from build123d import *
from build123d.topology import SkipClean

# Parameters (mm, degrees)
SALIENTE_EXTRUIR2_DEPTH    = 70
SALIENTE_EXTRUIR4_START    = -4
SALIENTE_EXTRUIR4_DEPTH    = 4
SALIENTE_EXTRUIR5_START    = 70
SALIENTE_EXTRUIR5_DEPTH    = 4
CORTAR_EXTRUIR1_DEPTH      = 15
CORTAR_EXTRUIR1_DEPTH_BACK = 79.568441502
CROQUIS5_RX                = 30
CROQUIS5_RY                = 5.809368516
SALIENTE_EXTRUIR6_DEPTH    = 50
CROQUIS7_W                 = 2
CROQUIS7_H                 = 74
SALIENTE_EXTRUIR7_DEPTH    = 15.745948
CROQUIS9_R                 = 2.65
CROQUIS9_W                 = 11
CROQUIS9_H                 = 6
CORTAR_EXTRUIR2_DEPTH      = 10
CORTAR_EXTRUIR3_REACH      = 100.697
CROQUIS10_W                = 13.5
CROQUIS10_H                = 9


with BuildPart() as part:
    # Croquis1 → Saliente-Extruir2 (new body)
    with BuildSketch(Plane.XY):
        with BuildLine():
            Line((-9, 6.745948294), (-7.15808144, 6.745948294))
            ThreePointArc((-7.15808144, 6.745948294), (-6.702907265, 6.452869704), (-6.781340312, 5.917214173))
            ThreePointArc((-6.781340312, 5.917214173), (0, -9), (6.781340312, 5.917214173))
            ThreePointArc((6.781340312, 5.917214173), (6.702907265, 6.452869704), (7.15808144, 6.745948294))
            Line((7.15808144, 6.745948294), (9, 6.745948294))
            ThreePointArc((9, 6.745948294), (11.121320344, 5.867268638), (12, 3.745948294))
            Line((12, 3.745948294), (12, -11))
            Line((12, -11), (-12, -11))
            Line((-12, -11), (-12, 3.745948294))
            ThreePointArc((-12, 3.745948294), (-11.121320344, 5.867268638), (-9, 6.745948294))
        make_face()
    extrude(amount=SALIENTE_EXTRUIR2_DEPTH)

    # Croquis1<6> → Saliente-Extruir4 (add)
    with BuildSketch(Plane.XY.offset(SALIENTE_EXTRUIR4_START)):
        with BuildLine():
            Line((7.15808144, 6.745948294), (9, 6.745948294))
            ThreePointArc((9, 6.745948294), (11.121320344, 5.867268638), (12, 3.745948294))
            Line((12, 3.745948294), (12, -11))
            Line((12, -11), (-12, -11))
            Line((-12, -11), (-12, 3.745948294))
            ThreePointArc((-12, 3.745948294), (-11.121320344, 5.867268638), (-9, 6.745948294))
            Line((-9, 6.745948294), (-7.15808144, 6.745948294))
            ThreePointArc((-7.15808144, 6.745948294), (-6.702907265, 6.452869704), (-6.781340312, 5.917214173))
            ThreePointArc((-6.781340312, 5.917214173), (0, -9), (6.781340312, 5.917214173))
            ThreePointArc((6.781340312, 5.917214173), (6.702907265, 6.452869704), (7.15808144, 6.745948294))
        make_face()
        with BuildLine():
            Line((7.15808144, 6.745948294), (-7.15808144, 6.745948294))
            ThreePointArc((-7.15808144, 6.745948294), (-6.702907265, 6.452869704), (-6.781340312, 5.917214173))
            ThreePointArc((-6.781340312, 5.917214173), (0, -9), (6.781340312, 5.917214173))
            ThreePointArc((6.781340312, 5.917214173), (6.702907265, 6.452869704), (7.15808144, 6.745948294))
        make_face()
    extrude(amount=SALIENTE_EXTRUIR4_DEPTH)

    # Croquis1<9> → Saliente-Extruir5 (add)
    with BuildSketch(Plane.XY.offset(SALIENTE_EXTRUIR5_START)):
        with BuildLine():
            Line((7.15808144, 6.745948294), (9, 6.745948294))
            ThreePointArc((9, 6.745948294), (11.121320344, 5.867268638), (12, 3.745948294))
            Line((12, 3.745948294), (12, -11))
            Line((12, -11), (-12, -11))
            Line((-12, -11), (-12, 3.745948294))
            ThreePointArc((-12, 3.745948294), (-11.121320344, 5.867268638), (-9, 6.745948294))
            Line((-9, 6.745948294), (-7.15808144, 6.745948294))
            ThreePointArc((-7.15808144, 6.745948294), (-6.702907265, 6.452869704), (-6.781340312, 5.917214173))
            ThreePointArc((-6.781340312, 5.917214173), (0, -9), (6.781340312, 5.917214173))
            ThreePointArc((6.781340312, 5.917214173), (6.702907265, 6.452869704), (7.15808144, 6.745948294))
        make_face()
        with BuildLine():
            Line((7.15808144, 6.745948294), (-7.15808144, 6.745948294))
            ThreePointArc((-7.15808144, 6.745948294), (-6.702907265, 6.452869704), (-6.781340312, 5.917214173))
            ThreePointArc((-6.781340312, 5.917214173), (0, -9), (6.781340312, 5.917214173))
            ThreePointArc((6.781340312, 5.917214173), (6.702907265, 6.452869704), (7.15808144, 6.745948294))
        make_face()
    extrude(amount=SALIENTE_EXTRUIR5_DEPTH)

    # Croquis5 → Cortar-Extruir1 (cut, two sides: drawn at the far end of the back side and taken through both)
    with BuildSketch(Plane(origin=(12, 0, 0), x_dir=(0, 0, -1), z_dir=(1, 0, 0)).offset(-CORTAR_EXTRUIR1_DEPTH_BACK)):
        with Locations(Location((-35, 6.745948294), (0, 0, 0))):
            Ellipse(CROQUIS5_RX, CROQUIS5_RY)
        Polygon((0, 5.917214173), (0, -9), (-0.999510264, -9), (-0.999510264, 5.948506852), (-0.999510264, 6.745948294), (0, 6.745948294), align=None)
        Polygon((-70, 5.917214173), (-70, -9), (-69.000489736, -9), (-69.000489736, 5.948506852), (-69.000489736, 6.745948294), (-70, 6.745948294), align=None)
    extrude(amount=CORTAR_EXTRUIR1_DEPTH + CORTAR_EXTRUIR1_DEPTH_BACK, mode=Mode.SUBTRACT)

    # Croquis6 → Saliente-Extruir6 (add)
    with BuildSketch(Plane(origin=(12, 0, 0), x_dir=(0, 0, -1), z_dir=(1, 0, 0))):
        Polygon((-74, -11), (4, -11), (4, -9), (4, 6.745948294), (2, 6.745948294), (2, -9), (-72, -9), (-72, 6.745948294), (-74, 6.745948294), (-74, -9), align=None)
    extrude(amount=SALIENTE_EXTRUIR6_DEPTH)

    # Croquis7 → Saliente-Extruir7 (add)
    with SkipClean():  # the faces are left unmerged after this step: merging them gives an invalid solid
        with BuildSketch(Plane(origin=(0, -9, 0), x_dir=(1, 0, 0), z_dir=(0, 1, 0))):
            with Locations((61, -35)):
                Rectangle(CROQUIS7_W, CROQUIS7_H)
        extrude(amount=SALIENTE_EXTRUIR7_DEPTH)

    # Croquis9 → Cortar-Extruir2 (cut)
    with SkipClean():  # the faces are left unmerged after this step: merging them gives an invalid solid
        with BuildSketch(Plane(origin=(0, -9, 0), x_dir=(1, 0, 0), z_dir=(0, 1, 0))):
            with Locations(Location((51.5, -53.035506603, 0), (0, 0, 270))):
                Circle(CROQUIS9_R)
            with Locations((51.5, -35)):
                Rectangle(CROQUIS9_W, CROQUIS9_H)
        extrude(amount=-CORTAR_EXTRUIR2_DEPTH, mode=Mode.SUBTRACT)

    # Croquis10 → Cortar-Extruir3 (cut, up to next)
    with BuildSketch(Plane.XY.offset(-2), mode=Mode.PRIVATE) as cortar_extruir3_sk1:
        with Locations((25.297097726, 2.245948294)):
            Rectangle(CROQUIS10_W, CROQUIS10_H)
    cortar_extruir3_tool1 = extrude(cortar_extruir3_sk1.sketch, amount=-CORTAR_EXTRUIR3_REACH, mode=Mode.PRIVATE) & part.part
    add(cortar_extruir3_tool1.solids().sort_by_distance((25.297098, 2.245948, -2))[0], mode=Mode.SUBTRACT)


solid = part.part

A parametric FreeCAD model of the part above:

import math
import FreeCAD as App
import Part
import Sketcher
Q = App.Units.Quantity


def add_polygon(sketch, points):
    """Adds a closed chain of lines whose ends are joined by coincident constraints."""
    first, n = sketch.GeometryCount, len(points)
    for a, b in zip(points, points[1:] + points[:1]):
        sketch.addGeometry(Part.LineSegment(App.Vector(*a, 0), App.Vector(*b, 0)), False)
    for i in range(n):
        sketch.addConstraint(Sketcher.Constraint("Coincident", first + i, 2, first + (i + 1) % n, 1))

doc = App.newDocument("Part")
body = doc.addObject("PartDesign::Body", "Body")

# Sketch on XY plane
sketch1 = body.newObject("Sketcher::SketchObject", "Sketch")
sketch1.AttachmentSupport = (doc.getObject("XY_Plane"), [""])
sketch1.MapMode = "FlatFace"
sketch1.addGeometry([
    Part.LineSegment(App.Vector(-7.2, 6.7, 0), App.Vector(-9, 6.7, 0)),  # 0
    Part.ArcOfCircle(Part.Circle(App.Vector(-9, 3.7, 0), App.Vector(0, 0, 1), 3), math.radians(90), math.radians(180)),  # 1
    Part.LineSegment(App.Vector(-12, 3.7, 0), App.Vector(-12, -11, 0)),  # 2
    Part.LineSegment(App.Vector(-12, -11, 0), App.Vector(12, -11, 0)),  # 3
    Part.LineSegment(App.Vector(12, -11, 0), App.Vector(12, 3.7, 0)),  # 4
    Part.ArcOfCircle(Part.Circle(App.Vector(9, 3.7, 0), App.Vector(0, 0, 1), 3), math.radians(0), math.radians(90)),  # 5
    Part.LineSegment(App.Vector(9, 6.7, 0), App.Vector(7.2, 6.7, 0)),  # 6
    Part.ArcOfCircle(Part.Circle(App.Vector(7.2, 6.2, 0), App.Vector(0, 0, 1), 0.5), math.radians(90), math.radians(221)),  # 7
    Part.ArcOfCircle(Part.Circle(App.Vector(0, 0, 0), App.Vector(0, 0, 1), 9), math.radians(139), math.radians(401)),  # 8
    Part.ArcOfCircle(Part.Circle(App.Vector(-7.2, 6.2, 0), App.Vector(0, 0, 1), 0.5), math.radians(-41), math.radians(90)),  # 9
], False)
sketch1.addConstraint([
    Sketcher.Constraint("Tangent", 0, 2, 1, 1),
    Sketcher.Constraint("Tangent", 1, 2, 2, 1),
    Sketcher.Constraint("Coincident", 2, 2, 3, 1),
    Sketcher.Constraint("Coincident", 3, 2, 4, 1),
    Sketcher.Constraint("Tangent", 4, 2, 5, 1),
    Sketcher.Constraint("Tangent", 5, 2, 6, 1),
    Sketcher.Constraint("Tangent", 6, 2, 7, 1),
    Sketcher.Constraint("Tangent", 7, 2, 8, 2),
    Sketcher.Constraint("Tangent", 8, 1, 9, 1),
    Sketcher.Constraint("Tangent", 9, 2, 0, 1),
    Sketcher.Constraint("Horizontal", 0),
    Sketcher.Constraint("Vertical", 2),
    Sketcher.Constraint("Horizontal", 3),
    Sketcher.Constraint("Vertical", 4),
    Sketcher.Constraint("Horizontal", 6),
    Sketcher.Constraint("Coincident", 8, 3, -1, 1),
    Sketcher.Constraint("Equal", 1, 5),
    Sketcher.Constraint("Equal", 7, 9),
    Sketcher.Constraint("Symmetric", 1, 3, 5, 3, -2),
    Sketcher.Constraint("Radius", 1, Q("3 mm")),
    Sketcher.Constraint("Radius", 8, Q("9 mm")),
    Sketcher.Constraint("Radius", 7, Q("0.5 mm")),
    Sketcher.Constraint("DistanceX", 3, 1, 3, 2, Q("24 mm")),
    Sketcher.Constraint("DistanceY", 2, 2, -1, 1, Q("11 mm")),
    Sketcher.Constraint("DistanceX", 0, 2, 0, 1, Q("1.841919 mm")),
])
pad1 = body.newObject("PartDesign::Pad", "Pad")
pad1.Profile = sketch1
pad1.Length = 70

# Sketch on XY plane
sketch2 = body.newObject("Sketcher::SketchObject", "Sketch001")
sketch2.AttachmentSupport = (doc.getObject("XY_Plane"), [""])
sketch2.MapMode = "FlatFace"
sketch2.AttachmentOffset = App.Placement(App.Vector(0, 0, -4), App.Rotation())
sketch2.addGeometry([
    Part.LineSegment(App.Vector(9, 6.7, 0), App.Vector(-9, 6.7, 0)),  # 0
    Part.ArcOfCircle(Part.Circle(App.Vector(-9, 3.7, 0), App.Vector(0, 0, 1), 3), math.radians(90), math.radians(180)),  # 1
    Part.LineSegment(App.Vector(-12, 3.7, 0), App.Vector(-12, -11, 0)),  # 2
    Part.LineSegment(App.Vector(-12, -11, 0), App.Vector(12, -11, 0)),  # 3
    Part.LineSegment(App.Vector(12, -11, 0), App.Vector(12, 3.7, 0)),  # 4
    Part.ArcOfCircle(Part.Circle(App.Vector(9, 3.7, 0), App.Vector(0, 0, 1), 3), math.radians(0), math.radians(90)),  # 5
], False)
sketch2.addConstraint([
    Sketcher.Constraint("Tangent", 0, 2, 1, 1),
    Sketcher.Constraint("Tangent", 1, 2, 2, 1),
    Sketcher.Constraint("Coincident", 2, 2, 3, 1),
    Sketcher.Constraint("Coincident", 3, 2, 4, 1),
    Sketcher.Constraint("Tangent", 4, 2, 5, 1),
    Sketcher.Constraint("Tangent", 5, 2, 0, 1),
    Sketcher.Constraint("Horizontal", 0),
    Sketcher.Constraint("Vertical", 2),
    Sketcher.Constraint("Horizontal", 3),
    Sketcher.Constraint("Vertical", 4),
    Sketcher.Constraint("Equal", 1, 5),
    Sketcher.Constraint("Radius", 1, Q("3 mm")),
    Sketcher.Constraint("DistanceX", 0, 2, 0, 1, Q("18 mm")),
    Sketcher.Constraint("DistanceX", 1, 3, -1, 1, Q("9 mm")),
    Sketcher.Constraint("DistanceY", 2, 2, -1, 1, Q("11 mm")),
    Sketcher.Constraint("DistanceY", 2, 2, 2, 1, Q("14.745948 mm")),
])
pad2 = body.newObject("PartDesign::Pad", "Pad001")
pad2.Profile = sketch2
pad2.Length = 4

# Sketch on XY plane
sketch3 = body.newObject("Sketcher::SketchObject", "Sketch002")
sketch3.AttachmentSupport = (doc.getObject("XY_Plane"), [""])
sketch3.MapMode = "FlatFace"
sketch3.AttachmentOffset = App.Placement(App.Vector(0, 0, 70), App.Rotation())
sketch3.addGeometry([
    Part.LineSegment(App.Vector(9, 6.7, 0), App.Vector(-9, 6.7, 0)),  # 0
    Part.ArcOfCircle(Part.Circle(App.Vector(-9, 3.7, 0), App.Vector(0, 0, 1), 3), math.radians(90), math.radians(180)),  # 1
    Part.LineSegment(App.Vector(-12, 3.7, 0), App.Vector(-12, -11, 0)),  # 2
    Part.LineSegment(App.Vector(-12, -11, 0), App.Vector(12, -11, 0)),  # 3
    Part.LineSegment(App.Vector(12, -11, 0), App.Vector(12, 3.7, 0)),  # 4
    Part.ArcOfCircle(Part.Circle(App.Vector(9, 3.7, 0), App.Vector(0, 0, 1), 3), math.radians(0), math.radians(90)),  # 5
], False)
sketch3.addConstraint([
    Sketcher.Constraint("Tangent", 0, 2, 1, 1),
    Sketcher.Constraint("Tangent", 1, 2, 2, 1),
    Sketcher.Constraint("Coincident", 2, 2, 3, 1),
    Sketcher.Constraint("Coincident", 3, 2, 4, 1),
    Sketcher.Constraint("Tangent", 4, 2, 5, 1),
    Sketcher.Constraint("Tangent", 5, 2, 0, 1),
    Sketcher.Constraint("Horizontal", 0),
    Sketcher.Constraint("Vertical", 2),
    Sketcher.Constraint("Horizontal", 3),
    Sketcher.Constraint("Vertical", 4),
    Sketcher.Constraint("Equal", 1, 5),
    Sketcher.Constraint("Radius", 1, Q("3 mm")),
    Sketcher.Constraint("DistanceX", 0, 2, 0, 1, Q("18 mm")),
    Sketcher.Constraint("DistanceX", 1, 3, -1, 1, Q("9 mm")),
    Sketcher.Constraint("DistanceY", 2, 2, -1, 1, Q("11 mm")),
    Sketcher.Constraint("DistanceY", 2, 2, 2, 1, Q("14.745948 mm")),
])
pad3 = body.newObject("PartDesign::Pad", "Pad002")
pad3.Profile = sketch3
pad3.Length = 4

# Sketch on YZ plane
sketch4 = body.newObject("Sketcher::SketchObject", "Sketch003")
sketch4.AttachmentSupport = (doc.getObject("YZ_Plane"), [""])
sketch4.MapMode = "FlatFace"
sketch4.AttachmentOffset = App.Placement(App.Vector(0, 0, 12), App.Rotation())
sketch4.addGeometry(Part.Ellipse(App.Vector(6.745948, 5, 0), App.Vector(12.555317, 35, 0), App.Vector(6.745948, 35, 0)), False)  # 0
add_polygon(sketch4, [(-9, 0), (6.745948, 0), (6.745948, 0.99951), (-9, 0.99951)])  # lines 1-4
add_polygon(sketch4, [(-9, 70), (-9, 69.00049), (6.745948, 69.00049), (6.745948, 70)])  # lines 5-8
sketch4.addConstraint([
    Sketcher.Constraint("Block", 0),
    Sketcher.Constraint("Horizontal", 1),
    Sketcher.Constraint("Vertical", 2),
    Sketcher.Constraint("Horizontal", 3),
    Sketcher.Constraint("Vertical", 4),
    Sketcher.Constraint("Vertical", 5),
    Sketcher.Constraint("Horizontal", 6),
    Sketcher.Constraint("Vertical", 7),
    Sketcher.Constraint("Horizontal", 8),
    Sketcher.Constraint("PointOnObject", 1, 2, -1),
    Sketcher.Constraint("Vertical", 4, 2, 5, 2),
    Sketcher.Constraint("Vertical", 2, 2, 6, 2),
    Sketcher.Constraint("Equal", 4, 5),
    Sketcher.Constraint("DistanceX", 3, 2, -1, 1, Q("9 mm")),
    Sketcher.Constraint("DistanceY", -1, 1, 7, 2, Q("70 mm")),
    Sketcher.Constraint("DistanceX", 1, 1, 1, 2, Q("15.745948 mm")),
    Sketcher.Constraint("DistanceY", 2, 1, 2, 2, Q("0.99951 mm")),
])
pocket1 = body.newObject("PartDesign::Pocket", "Pocket")
pocket1.Profile = sketch4
pocket1.Type = "ThroughAll"
pocket1.Midplane = True

# Sketch on YZ plane
sketch5 = body.newObject("Sketcher::SketchObject", "Sketch004")
sketch5.AttachmentSupport = (doc.getObject("YZ_Plane"), [""])
sketch5.MapMode = "FlatFace"
sketch5.AttachmentOffset = App.Placement(App.Vector(0, 0, 12), App.Rotation())
add_polygon(sketch5, [(-11, 74), (-11, -4), (6.7, -4), (6.7, -2), (-9, -2), (-9, 72), (6.7, 72), (6.7, 74)])  # lines 0-7
sketch5.addConstraint([
    Sketcher.Constraint("Vertical", 0),
    Sketcher.Constraint("Horizontal", 1),
    Sketcher.Constraint("Vertical", 2),
    Sketcher.Constraint("Horizontal", 3),
    Sketcher.Constraint("Vertical", 4),
    Sketcher.Constraint("Horizontal", 5),
    Sketcher.Constraint("Vertical", 6),
    Sketcher.Constraint("Horizontal", 7),
    Sketcher.Constraint("Vertical", 2, 2, 5, 2),
    Sketcher.Constraint("Equal", 2, 6),
    Sketcher.Constraint("DistanceY", 0, 2, 0, 1, Q("78 mm")),
    Sketcher.Constraint("DistanceY", 2, 1, 2, 2, Q("2 mm")),
    Sketcher.Constraint("DistanceX", 0, 2, -1, 1, Q("11 mm")),
    Sketcher.Constraint("DistanceY", 0, 2, -1, 1, Q("4 mm")),
    Sketcher.Constraint("DistanceX", 3, 2, -1, 1, Q("9 mm")),
    Sketcher.Constraint("DistanceX", 1, 1, 1, 2, Q("17.745948 mm")),
])
pad4 = body.newObject("PartDesign::Pad", "Pad003")
pad4.Profile = sketch5
pad4.Length = 50

# Sketch on XZ plane
sketch6 = body.newObject("Sketcher::SketchObject", "Sketch005")
sketch6.AttachmentSupport = (doc.getObject("XZ_Plane"), [""])
sketch6.MapMode = "FlatFace"
sketch6.AttachmentOffset = App.Placement(App.Vector(0, 0, 9), App.Rotation())
add_polygon(sketch6, [(60, -2), (60, 72), (62, 72), (62, -2)])  # lines 0-3
sketch6.addConstraint([
    Sketcher.Constraint("Vertical", 0),
    Sketcher.Constraint("Horizontal", 1),
    Sketcher.Constraint("Vertical", 2),
    Sketcher.Constraint("Horizontal", 3),
    Sketcher.Constraint("DistanceX", 1, 1, 1, 2, Q("2 mm")),
    Sketcher.Constraint("DistanceY", 0, 1, 0, 2, Q("74 mm")),
    Sketcher.Constraint("DistanceX", -1, 1, 0, 2, Q("60 mm")),
    Sketcher.Constraint("DistanceY", -1, 1, 0, 2, Q("72 mm")),
])
pad5 = body.newObject("PartDesign::Pad", "Pad004")
pad5.Profile = sketch6
pad5.Length = 15.745948
pad5.Reversed = True

# Sketch on XZ plane
sketch7 = body.newObject("Sketcher::SketchObject", "Sketch006")
sketch7.AttachmentSupport = (doc.getObject("XZ_Plane"), [""])
sketch7.MapMode = "FlatFace"
sketch7.AttachmentOffset = App.Placement(App.Vector(0, 0, 9), App.Rotation())
sketch7.addGeometry(Part.Circle(App.Vector(51.5, 53, 0), App.Vector(0, 0, 1), 2.6), False)  # 0
add_polygon(sketch7, [(46, 32), (46, 38), (57, 38), (57, 32)])  # lines 1-4
sketch7.addConstraint([
    Sketcher.Constraint("Vertical", 1),
    Sketcher.Constraint("Horizontal", 2),
    Sketcher.Constraint("Vertical", 3),
    Sketcher.Constraint("Horizontal", 4),
    Sketcher.Constraint("Diameter", 0, Q("5.3 mm")),
    Sketcher.Constraint("DistanceX", 2, 1, 2, 2, Q("11 mm")),
    Sketcher.Constraint("DistanceY", 1, 1, 1, 2, Q("6 mm")),
    Sketcher.Constraint("DistanceX", -1, 1, 1, 2, Q("46 mm")),
    Sketcher.Constraint("DistanceY", -1, 1, 1, 2, Q("38 mm")),
    Sketcher.Constraint("DistanceX", -1, 1, 0, 3, Q("51.5 mm")),
    Sketcher.Constraint("DistanceY", -1, 1, 0, 3, Q("53.035507 mm")),
])
pocket2 = body.newObject("PartDesign::Pocket", "Pocket001")
pocket2.Profile = sketch7
pocket2.Length = 10
pocket2.Reversed = True

# Sketch on XY plane
sketch8 = body.newObject("Sketcher::SketchObject", "Sketch007")
sketch8.AttachmentSupport = (doc.getObject("XY_Plane"), [""])
sketch8.MapMode = "FlatFace"
sketch8.AttachmentOffset = App.Placement(App.Vector(0, 0, -2), App.Rotation())
add_polygon(sketch8, [(19, 7), (19, -2), (32, -2), (32, 7)])  # lines 0-3
sketch8.addConstraint([
    Sketcher.Constraint("Vertical", 0),
    Sketcher.Constraint("Horizontal", 1),
    Sketcher.Constraint("Vertical", 2),
    Sketcher.Constraint("Horizontal", 3),
    Sketcher.Constraint("DistanceY", 0, 2, 0, 1, Q("9 mm")),
    Sketcher.Constraint("DistanceX", 1, 1, 1, 2, Q("13.5 mm")),
    Sketcher.Constraint("DistanceY", 0, 2, -1, 1, Q("2.254052 mm")),
    Sketcher.Constraint("DistanceX", -1, 1, 0, 2, Q("18.547098 mm")),
])
pocket3 = body.newObject("PartDesign::Pocket", "Pocket002")
pocket3.Profile = sketch8
pocket3.Type = "UpToFirst"

doc.recompute()
